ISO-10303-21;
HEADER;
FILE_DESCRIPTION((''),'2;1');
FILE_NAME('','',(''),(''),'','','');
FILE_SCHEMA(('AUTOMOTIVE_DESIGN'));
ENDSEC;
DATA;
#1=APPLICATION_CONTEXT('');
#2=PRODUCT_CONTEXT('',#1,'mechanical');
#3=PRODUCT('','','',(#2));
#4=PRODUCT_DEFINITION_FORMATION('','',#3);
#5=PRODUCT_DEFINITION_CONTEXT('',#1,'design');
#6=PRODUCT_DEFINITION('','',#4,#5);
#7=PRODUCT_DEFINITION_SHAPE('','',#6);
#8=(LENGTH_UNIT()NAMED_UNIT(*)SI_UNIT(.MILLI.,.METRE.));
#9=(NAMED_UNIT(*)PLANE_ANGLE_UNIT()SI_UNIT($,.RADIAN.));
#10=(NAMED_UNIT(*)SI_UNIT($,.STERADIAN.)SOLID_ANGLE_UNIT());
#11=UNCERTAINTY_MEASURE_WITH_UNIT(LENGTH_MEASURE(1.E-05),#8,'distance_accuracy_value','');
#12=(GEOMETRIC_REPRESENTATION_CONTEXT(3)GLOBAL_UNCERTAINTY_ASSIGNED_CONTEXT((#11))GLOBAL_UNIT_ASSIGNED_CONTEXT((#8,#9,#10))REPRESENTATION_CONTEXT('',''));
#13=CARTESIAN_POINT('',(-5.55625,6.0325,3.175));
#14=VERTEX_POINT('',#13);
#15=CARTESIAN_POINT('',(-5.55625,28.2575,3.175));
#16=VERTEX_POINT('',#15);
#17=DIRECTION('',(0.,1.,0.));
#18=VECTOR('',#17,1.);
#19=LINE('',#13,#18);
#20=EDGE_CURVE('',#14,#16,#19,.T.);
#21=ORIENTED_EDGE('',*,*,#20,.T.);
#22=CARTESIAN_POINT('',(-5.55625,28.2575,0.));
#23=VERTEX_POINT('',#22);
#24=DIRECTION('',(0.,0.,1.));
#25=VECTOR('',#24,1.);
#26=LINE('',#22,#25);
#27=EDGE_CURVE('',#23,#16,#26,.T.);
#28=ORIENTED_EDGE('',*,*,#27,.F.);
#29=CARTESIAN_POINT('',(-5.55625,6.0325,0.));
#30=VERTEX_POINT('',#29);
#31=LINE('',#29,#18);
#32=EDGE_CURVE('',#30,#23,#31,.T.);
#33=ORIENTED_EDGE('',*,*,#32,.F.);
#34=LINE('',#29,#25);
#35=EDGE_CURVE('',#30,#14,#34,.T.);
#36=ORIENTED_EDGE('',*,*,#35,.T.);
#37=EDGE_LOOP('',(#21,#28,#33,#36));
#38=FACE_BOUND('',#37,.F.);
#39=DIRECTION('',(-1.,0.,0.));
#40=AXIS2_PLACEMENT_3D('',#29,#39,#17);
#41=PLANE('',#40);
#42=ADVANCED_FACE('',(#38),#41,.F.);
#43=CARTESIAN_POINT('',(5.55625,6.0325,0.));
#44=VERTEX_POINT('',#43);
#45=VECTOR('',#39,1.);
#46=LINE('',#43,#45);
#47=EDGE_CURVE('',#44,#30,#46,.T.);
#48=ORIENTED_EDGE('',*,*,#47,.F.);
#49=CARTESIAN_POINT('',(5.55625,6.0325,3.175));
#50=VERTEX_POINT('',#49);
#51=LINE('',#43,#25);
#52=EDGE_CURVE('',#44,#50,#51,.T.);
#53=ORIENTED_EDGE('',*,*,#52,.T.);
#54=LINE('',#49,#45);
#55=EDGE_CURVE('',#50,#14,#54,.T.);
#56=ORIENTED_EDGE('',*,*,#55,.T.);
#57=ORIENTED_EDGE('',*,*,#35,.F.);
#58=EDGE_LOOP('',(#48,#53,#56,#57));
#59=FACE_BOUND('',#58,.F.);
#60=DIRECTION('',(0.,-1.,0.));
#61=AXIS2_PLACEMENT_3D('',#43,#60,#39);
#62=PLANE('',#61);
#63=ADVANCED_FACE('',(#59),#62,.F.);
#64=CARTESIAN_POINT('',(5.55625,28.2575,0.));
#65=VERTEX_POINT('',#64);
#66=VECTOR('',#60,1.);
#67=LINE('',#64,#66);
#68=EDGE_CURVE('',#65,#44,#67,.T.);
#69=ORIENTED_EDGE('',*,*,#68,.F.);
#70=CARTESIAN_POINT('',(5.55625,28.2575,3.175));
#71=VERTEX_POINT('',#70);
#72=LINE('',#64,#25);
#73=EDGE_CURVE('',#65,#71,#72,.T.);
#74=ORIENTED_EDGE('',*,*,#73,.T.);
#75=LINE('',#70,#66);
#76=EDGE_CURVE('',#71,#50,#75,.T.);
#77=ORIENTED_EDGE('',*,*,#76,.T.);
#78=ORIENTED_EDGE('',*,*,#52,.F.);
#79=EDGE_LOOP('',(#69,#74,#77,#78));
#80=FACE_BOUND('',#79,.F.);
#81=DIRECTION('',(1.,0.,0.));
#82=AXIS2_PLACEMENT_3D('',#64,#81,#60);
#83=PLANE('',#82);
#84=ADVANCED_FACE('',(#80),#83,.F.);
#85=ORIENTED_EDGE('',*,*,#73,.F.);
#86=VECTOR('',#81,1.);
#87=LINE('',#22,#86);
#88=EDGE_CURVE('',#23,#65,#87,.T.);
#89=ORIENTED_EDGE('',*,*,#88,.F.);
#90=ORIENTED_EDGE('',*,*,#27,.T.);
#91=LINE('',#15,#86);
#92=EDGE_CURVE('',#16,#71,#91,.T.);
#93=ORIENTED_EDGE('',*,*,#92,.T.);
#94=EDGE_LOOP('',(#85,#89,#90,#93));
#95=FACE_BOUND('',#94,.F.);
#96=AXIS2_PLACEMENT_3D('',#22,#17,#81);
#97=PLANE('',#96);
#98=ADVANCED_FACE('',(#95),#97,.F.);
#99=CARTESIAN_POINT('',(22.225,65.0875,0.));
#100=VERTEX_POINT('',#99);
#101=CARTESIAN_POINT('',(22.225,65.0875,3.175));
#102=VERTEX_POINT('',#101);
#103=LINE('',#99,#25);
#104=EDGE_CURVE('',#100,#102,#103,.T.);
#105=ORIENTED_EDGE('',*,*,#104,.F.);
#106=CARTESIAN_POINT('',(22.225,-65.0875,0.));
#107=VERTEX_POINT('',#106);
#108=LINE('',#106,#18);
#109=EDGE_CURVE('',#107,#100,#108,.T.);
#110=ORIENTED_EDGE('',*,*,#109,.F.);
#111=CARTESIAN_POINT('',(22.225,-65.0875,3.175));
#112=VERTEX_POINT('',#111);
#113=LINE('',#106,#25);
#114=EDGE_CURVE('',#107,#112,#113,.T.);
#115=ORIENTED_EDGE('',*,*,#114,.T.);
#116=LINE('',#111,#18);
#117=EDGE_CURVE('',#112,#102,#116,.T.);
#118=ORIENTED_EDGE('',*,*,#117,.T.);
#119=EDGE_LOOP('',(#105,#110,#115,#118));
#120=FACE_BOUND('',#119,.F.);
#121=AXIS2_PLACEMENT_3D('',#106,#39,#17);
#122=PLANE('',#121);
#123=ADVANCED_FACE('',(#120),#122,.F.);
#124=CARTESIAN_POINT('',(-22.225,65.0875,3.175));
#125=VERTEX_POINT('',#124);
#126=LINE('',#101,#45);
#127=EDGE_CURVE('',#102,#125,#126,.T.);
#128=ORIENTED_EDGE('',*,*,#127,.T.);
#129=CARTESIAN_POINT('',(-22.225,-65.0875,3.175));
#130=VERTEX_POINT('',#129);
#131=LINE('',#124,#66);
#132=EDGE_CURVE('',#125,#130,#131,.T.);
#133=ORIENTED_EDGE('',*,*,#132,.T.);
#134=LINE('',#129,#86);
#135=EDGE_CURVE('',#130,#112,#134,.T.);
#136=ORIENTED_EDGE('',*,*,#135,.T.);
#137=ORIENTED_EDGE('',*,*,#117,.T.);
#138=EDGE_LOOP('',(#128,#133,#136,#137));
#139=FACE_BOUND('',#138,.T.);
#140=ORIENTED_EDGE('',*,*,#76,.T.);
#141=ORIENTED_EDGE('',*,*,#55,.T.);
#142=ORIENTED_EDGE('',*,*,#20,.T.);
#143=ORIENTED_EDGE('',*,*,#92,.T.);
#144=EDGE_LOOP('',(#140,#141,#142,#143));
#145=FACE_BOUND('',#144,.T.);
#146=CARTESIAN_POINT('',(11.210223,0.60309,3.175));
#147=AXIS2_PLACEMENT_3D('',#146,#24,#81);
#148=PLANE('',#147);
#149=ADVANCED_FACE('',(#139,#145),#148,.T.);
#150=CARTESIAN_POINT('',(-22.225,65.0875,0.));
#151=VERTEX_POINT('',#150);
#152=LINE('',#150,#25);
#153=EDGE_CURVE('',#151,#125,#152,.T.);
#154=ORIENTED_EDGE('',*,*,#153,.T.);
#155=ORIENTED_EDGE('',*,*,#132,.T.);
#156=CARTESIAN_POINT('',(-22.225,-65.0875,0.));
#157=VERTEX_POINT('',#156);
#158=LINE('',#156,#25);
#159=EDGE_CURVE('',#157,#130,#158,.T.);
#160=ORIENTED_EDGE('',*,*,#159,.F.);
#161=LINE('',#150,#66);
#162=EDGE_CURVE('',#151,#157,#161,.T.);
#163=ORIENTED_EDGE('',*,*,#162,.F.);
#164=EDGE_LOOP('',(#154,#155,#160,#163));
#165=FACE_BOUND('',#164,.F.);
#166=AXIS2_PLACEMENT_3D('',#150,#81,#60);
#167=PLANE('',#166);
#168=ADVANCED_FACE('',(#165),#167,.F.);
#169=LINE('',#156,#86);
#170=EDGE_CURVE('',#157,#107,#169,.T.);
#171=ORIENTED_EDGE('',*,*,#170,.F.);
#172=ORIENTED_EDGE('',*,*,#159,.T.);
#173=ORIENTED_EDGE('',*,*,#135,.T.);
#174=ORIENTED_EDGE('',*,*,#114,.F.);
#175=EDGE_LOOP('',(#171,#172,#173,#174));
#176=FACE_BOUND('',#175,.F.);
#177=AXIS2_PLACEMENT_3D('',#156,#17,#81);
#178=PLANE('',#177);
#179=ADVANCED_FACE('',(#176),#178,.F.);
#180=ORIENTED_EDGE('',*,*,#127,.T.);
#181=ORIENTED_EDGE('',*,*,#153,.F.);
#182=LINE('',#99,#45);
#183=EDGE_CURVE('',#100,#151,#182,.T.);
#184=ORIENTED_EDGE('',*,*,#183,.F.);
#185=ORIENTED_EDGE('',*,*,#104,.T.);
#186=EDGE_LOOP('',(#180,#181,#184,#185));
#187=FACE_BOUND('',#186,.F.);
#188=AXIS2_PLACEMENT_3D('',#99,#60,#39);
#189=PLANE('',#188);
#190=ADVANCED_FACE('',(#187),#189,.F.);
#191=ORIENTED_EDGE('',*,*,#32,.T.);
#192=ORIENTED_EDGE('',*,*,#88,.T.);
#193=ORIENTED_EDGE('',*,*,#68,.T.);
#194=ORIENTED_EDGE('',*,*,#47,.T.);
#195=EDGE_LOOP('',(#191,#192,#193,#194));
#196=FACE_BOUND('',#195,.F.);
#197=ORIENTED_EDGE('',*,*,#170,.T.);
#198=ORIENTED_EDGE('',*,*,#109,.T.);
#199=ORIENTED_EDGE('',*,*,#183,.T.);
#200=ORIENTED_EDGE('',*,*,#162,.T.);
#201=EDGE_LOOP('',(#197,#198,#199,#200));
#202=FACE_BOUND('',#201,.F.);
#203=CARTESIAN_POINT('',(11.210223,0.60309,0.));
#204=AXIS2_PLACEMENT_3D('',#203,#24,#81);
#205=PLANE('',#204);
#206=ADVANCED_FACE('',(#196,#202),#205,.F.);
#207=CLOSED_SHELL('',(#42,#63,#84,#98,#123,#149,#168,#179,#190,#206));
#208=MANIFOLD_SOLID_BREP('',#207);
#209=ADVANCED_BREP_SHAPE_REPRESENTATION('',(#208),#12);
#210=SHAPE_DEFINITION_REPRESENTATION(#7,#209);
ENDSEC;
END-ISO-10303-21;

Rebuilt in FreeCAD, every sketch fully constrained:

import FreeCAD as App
import Part
import Sketcher

V = App.Vector
Q = App.Units.Quantity

doc = App.newDocument("Part")
body = doc.addObject("PartDesign::Body", "Body")

sketch1 = doc.addObject("Sketcher::SketchObject", "Sketch")
body.addObject(sketch1)
sketch1.AttachmentSupport = (doc.XY_Plane, [""])
sketch1.MapMode = "FlatFace"
sketch1.addGeometry(Part.LineSegment(V(22, -65, 0), V(22, 65, 0)), False)
sketch1.addGeometry(Part.LineSegment(V(22, 65, 0), V(-22, 65, 0)), False)
sketch1.addGeometry(Part.LineSegment(V(-22, 65, 0), V(-22, -65, 0)), False)
sketch1.addGeometry(Part.LineSegment(V(-22, -65, 0), V(22, -65, 0)), False)
sketch1.addGeometry(Part.LineSegment(V(6, 28, 0), V(6, 6, 0)), False)
sketch1.addGeometry(Part.LineSegment(V(6, 6, 0), V(-6, 6, 0)), False)
sketch1.addGeometry(Part.LineSegment(V(-6, 6, 0), V(-6, 28, 0)), False)
sketch1.addGeometry(Part.LineSegment(V(-6, 28, 0), V(6, 28, 0)), False)
sketch1.addConstraint(Sketcher.Constraint("Coincident", 0, 2, 1, 1))
sketch1.addConstraint(Sketcher.Constraint("Coincident", 1, 2, 2, 1))
sketch1.addConstraint(Sketcher.Constraint("Coincident", 2, 2, 3, 1))
sketch1.addConstraint(Sketcher.Constraint("Coincident", 3, 2, 0, 1))
sketch1.addConstraint(Sketcher.Constraint("Coincident", 4, 2, 5, 1))
sketch1.addConstraint(Sketcher.Constraint("Coincident", 5, 2, 6, 1))
sketch1.addConstraint(Sketcher.Constraint("Coincident", 6, 2, 7, 1))
sketch1.addConstraint(Sketcher.Constraint("Coincident", 7, 2, 4, 1))
sketch1.addConstraint(Sketcher.Constraint("Vertical", 0))
sketch1.addConstraint(Sketcher.Constraint("Horizontal", 1))
sketch1.addConstraint(Sketcher.Constraint("Vertical", 2))
sketch1.addConstraint(Sketcher.Constraint("Horizontal", 3))
sketch1.addConstraint(Sketcher.Constraint("Vertical", 4))
sketch1.addConstraint(Sketcher.Constraint("Horizontal", 5))
sketch1.addConstraint(Sketcher.Constraint("Vertical", 6))
sketch1.addConstraint(Sketcher.Constraint("Horizontal", 7))
sketch1.addConstraint(Sketcher.Constraint("Symmetric", 0, 2, 2, 2, -1, 1))
sketch1.addConstraint(Sketcher.Constraint("DistanceX", 1, 2, 1, 1, Q("1.75 in")))
sketch1.addConstraint(Sketcher.Constraint("DistanceY", 3, 2, 4, 2, Q("2.8 in")))
sketch1.addConstraint(Sketcher.Constraint("DistanceX", 5, 2, 5, 1, Q("0.4375 in")))
sketch1.addConstraint(Sketcher.Constraint("DistanceY", 0, 1, 0, 2, Q("5.125 in")))
sketch1.addConstraint(Sketcher.Constraint("DistanceY", 4, 2, 4, 1, Q("0.875 in")))
sketch1.addConstraint(Sketcher.Constraint("DistanceX", -1, 1, 4, 2, Q("0.21875 in")))
pad1 = doc.addObject("PartDesign::Pad", "Pad")
body.addObject(pad1)
pad1.Profile = sketch1
pad1.Length = Q("0.125 in")

doc.recompute()
